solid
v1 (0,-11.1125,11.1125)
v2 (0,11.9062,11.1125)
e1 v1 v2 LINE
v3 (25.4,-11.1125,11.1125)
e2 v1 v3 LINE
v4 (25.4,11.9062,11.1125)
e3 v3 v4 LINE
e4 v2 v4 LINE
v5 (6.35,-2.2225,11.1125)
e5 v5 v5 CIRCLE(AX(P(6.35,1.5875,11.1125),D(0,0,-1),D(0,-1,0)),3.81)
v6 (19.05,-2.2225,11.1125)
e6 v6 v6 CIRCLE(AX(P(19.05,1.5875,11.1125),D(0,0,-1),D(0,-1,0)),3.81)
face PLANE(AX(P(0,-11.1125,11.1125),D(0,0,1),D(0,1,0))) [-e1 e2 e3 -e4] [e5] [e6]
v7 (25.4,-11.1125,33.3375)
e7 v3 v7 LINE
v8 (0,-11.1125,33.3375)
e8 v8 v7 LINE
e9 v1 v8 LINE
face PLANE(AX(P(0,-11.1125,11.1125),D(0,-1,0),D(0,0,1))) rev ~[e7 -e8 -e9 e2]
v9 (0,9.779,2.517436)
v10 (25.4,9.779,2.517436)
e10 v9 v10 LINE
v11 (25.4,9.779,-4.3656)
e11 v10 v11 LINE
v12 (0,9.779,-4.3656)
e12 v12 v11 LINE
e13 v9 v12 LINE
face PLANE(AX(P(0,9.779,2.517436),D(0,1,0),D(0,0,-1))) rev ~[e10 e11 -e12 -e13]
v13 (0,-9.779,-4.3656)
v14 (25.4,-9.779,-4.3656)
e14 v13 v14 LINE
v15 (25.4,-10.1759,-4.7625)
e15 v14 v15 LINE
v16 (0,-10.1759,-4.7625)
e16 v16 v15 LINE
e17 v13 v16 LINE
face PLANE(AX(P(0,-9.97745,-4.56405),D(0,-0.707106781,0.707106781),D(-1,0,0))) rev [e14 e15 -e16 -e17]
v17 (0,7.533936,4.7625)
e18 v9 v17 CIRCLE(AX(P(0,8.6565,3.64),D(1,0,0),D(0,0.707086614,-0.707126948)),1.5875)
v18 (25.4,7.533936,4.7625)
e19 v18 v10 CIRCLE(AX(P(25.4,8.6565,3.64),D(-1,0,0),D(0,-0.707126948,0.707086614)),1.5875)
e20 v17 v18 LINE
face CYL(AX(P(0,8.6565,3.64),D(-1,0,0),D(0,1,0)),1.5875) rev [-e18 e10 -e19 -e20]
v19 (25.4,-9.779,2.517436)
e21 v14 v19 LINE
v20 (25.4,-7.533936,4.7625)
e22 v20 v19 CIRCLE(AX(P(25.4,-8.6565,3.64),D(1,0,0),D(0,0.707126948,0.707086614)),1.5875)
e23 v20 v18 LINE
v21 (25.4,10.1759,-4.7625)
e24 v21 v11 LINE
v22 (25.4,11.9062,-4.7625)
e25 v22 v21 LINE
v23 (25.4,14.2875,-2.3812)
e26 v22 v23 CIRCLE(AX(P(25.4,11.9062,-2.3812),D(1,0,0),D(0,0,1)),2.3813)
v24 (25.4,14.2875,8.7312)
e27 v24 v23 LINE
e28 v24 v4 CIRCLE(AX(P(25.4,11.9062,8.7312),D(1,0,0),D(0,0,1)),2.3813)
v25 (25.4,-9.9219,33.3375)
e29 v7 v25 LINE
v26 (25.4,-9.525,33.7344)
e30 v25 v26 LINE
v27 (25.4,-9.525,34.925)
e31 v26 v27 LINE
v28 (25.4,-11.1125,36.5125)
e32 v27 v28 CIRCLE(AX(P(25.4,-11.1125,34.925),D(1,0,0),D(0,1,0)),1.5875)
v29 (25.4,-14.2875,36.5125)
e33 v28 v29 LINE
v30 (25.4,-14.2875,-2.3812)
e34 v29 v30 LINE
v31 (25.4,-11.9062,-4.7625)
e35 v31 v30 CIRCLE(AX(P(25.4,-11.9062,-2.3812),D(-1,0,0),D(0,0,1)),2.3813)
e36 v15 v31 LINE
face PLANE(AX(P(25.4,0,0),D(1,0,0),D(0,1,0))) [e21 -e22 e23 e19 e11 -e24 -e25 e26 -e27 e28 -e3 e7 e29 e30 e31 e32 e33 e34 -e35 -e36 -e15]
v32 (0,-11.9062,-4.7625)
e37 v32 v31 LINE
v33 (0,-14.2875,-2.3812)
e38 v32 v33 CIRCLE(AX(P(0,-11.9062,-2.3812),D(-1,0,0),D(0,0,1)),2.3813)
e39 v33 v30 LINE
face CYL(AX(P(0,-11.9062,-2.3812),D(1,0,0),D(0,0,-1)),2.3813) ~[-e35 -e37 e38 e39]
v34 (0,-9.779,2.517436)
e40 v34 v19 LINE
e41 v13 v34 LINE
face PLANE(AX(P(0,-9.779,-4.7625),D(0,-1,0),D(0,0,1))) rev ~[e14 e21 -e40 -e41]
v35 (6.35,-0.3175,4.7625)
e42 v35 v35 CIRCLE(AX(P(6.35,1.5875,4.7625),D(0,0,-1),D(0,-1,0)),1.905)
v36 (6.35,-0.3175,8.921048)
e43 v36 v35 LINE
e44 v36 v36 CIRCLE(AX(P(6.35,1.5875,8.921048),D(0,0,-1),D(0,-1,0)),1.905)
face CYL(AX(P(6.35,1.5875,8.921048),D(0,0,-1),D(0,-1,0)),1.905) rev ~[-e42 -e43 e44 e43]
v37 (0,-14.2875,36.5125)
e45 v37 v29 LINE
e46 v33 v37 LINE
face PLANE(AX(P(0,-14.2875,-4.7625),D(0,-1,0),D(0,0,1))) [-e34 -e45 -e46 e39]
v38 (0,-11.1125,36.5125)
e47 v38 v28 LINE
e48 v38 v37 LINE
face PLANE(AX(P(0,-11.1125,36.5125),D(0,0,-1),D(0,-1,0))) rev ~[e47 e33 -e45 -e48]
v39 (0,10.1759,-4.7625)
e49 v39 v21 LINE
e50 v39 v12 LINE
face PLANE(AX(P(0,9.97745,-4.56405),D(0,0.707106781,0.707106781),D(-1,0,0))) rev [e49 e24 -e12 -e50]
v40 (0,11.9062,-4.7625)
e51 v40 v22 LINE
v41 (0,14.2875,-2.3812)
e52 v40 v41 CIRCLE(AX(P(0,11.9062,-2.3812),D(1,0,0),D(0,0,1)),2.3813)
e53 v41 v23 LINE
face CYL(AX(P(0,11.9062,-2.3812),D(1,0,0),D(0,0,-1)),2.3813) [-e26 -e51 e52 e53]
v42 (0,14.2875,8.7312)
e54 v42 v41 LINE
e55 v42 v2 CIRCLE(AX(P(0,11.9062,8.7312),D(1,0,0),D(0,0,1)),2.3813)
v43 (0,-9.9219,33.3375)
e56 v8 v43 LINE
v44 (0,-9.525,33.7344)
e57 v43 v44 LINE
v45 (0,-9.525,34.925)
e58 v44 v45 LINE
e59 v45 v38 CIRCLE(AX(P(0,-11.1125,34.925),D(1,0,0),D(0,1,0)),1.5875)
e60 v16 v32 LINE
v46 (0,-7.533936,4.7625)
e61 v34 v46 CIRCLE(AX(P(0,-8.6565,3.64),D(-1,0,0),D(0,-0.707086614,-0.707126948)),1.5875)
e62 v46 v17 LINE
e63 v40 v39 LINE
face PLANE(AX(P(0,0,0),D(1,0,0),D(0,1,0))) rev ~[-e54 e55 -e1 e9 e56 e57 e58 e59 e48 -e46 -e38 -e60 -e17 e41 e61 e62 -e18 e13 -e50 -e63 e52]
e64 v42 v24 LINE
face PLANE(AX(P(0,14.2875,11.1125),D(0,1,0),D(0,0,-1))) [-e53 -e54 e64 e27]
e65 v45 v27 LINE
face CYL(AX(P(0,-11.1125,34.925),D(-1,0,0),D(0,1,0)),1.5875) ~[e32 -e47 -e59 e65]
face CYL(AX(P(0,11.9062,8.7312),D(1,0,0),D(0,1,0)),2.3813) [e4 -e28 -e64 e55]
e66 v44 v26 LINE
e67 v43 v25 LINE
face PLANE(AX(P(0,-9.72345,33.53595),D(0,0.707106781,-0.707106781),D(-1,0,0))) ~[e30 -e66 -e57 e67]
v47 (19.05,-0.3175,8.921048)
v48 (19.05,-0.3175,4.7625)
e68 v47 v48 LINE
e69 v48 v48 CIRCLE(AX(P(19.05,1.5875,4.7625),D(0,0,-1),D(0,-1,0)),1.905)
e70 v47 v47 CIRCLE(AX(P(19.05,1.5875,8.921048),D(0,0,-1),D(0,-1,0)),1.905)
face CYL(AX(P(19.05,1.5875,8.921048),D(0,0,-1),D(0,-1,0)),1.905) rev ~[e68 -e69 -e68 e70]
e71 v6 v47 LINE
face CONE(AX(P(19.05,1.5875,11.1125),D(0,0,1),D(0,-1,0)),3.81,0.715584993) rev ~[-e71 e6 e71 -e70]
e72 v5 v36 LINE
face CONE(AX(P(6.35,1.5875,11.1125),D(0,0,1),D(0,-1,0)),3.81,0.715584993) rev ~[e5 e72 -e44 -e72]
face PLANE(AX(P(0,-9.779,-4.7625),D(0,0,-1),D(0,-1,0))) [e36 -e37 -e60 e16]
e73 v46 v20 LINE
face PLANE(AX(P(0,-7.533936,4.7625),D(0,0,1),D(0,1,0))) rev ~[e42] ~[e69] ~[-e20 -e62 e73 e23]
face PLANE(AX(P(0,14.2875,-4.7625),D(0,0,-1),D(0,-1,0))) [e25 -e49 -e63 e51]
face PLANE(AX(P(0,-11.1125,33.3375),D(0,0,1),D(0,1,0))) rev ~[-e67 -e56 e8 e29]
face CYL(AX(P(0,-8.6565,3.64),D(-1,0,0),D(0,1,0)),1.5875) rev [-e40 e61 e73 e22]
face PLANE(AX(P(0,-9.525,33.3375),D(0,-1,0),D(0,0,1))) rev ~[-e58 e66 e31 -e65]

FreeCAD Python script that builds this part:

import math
import FreeCAD as App
import Part
import Sketcher
Q = App.Units.Quantity


def edges_at(feature, points):
    """Names of the edges that pass closest to the given points."""
    edges = feature.Shape.Edges
    near = lambda p: min(range(len(edges)), key=lambda i: edges[i].distToShape(Part.Vertex(*p))[0])
    return sorted({f"Edge{near(p) + 1}" for p in points})

doc = App.newDocument("Part")
body = doc.addObject("PartDesign::Body", "Body")

# Sketch on YZ plane
sketch1 = doc.addObject("Sketcher::SketchObject", "Sketch")
body.addObject(sketch1)
sketch1.AttachmentSupport = (doc.YZ_Plane, [""])
sketch1.MapMode = "FlatFace"
sketch1.addGeometry([
    Part.ArcOfCircle(Part.Circle(App.Vector(-8.7, 3.6, 0), App.Vector(0, 0, 1), 1.6), math.radians(45), math.radians(225)),  # 0
    Part.LineSegment(App.Vector(-7.5, 4.8, 0), App.Vector(7.5, 4.8, 0)),  # 1
    Part.ArcOfCircle(Part.Circle(App.Vector(8.7, 3.6, 0), App.Vector(0, 0, 1), 1.6), math.radians(-45), math.radians(135)),  # 2
    Part.LineSegment(App.Vector(9.8, 2.5, 0), App.Vector(9.8, -4.8, 0)),  # 3
    Part.LineSegment(App.Vector(9.8, -4.8, 0), App.Vector(14.3, -4.8, 0)),  # 4
    Part.LineSegment(App.Vector(14.3, -4.8, 0), App.Vector(14.3, 11.1, 0)),  # 5
    Part.LineSegment(App.Vector(14.3, 11.1, 0), App.Vector(-11.1, 11.1, 0)),  # 6
    Part.LineSegment(App.Vector(-11.1, 11.1, 0), App.Vector(-11.1, 33.3, 0)),  # 7
    Part.LineSegment(App.Vector(-11.1, 33.3, 0), App.Vector(-9.5, 33.3, 0)),  # 8
    Part.LineSegment(App.Vector(-9.5, 33.3, 0), App.Vector(-9.5, 34.9, 0)),  # 9
    Part.ArcOfCircle(Part.Circle(App.Vector(-11.1, 34.9, 0), App.Vector(0, 0, 1), 1.6), math.radians(0), math.radians(90)),  # 10
    Part.LineSegment(App.Vector(-11.1, 36.5, 0), App.Vector(-14.3, 36.5, 0)),  # 11
    Part.LineSegment(App.Vector(-14.3, 36.5, 0), App.Vector(-14.3, -4.8, 0)),  # 12
    Part.LineSegment(App.Vector(-14.3, -4.8, 0), App.Vector(-9.8, -4.8, 0)),  # 13
    Part.LineSegment(App.Vector(-9.8, -4.8, 0), App.Vector(-9.8, 2.5, 0)),  # 14
], False)
sketch1.addConstraint([
    Sketcher.Constraint("Coincident", 0, 1, 1, 1),
    Sketcher.Constraint("Coincident", 1, 2, 2, 2),
    Sketcher.Constraint("Coincident", 2, 1, 3, 1),
    Sketcher.Constraint("Coincident", 3, 2, 4, 1),
    Sketcher.Constraint("Coincident", 4, 2, 5, 1),
    Sketcher.Constraint("Coincident", 5, 2, 6, 1),
    Sketcher.Constraint("Coincident", 6, 2, 7, 1),
    Sketcher.Constraint("Coincident", 7, 2, 8, 1),
    Sketcher.Constraint("Coincident", 8, 2, 9, 1),
    Sketcher.Constraint("Tangent", 9, 2, 10, 1),
    Sketcher.Constraint("Tangent", 10, 2, 11, 1),
    Sketcher.Constraint("Coincident", 11, 2, 12, 1),
    Sketcher.Constraint("Coincident", 12, 2, 13, 1),
    Sketcher.Constraint("Coincident", 13, 2, 14, 1),
    Sketcher.Constraint("Coincident", 14, 2, 0, 2),
    Sketcher.Constraint("Horizontal", 1),
    Sketcher.Constraint("Vertical", 3),
    Sketcher.Constraint("Horizontal", 4),
    Sketcher.Constraint("Vertical", 5),
    Sketcher.Constraint("Horizontal", 6),
    Sketcher.Constraint("Vertical", 7),
    Sketcher.Constraint("Horizontal", 8),
    Sketcher.Constraint("Vertical", 9),
    Sketcher.Constraint("Horizontal", 11),
    Sketcher.Constraint("Vertical", 12),
    Sketcher.Constraint("Horizontal", 13),
    Sketcher.Constraint("Vertical", 14),
    Sketcher.Constraint("Equal", 0, 2),
    Sketcher.Constraint("Equal", 2, 10),
    Sketcher.Constraint("Symmetric", 0, 3, 2, 3, -2),
    Sketcher.Constraint("Symmetric", 4, 2, 12, 2, -2),
    Sketcher.Constraint("Horizontal", 2, 1, 14, 2),
    Sketcher.Constraint("Vertical", 10, 3, 6, 2),
    Sketcher.Constraint("Equal", 8, 9),
    Sketcher.Constraint("Radius", 0, Q("0.0625 in")),
    Sketcher.Constraint("DistanceX", 6, 2, 6, 1, Q("1 in")),
    Sketcher.Constraint("DistanceX", 11, 2, 11, 1, Q("0.125 in")),
    Sketcher.Constraint("DistanceY", 7, 1, 7, 2, Q("0.875 in")),
    Sketcher.Constraint("DistanceY", 1, 2, 5, 2, Q("0.25 in")),
    Sketcher.Constraint("DistanceX", 13, 2, 3, 2, Q("0.77 in")),
    Sketcher.Constraint("DistanceY", 3, 2, 1, 2, Q("0.375 in")),
    Sketcher.Constraint("DistanceY", 3, 2, 3, 1, Q("0.2866 in")),
    Sketcher.Constraint("DistanceY", -1, 1, 10, 3, Q("1.375 in")),
    Sketcher.Constraint("DistanceX", 0, 3, -1, 1, Q("0.3408 in")),
])
pad1 = doc.addObject("PartDesign::Pad", "Pad")
body.addObject(pad1)
pad1.Profile = sketch1
pad1.Length = Q("1 in")
doc.recompute()

chamfer = doc.addObject("PartDesign::Chamfer", "Chamfer")
body.addObject(chamfer)
chamfer.Base = (pad1, edges_at(pad1, [(12.7, -9.779, -4.763), (12.7, 9.779, -4.763), (12.7, -9.525, 33.337)]))
chamfer.Size = Q("0.015626 in")
doc.recompute()

fillet = doc.addObject("PartDesign::Fillet", "Fillet")
body.addObject(fillet)
fillet.Base = (chamfer, edges_at(chamfer, [(12.7, 14.287, -4.763), (12.7, -14.287, -4.763)]))
fillet.Radius = Q("0.093752 in")
doc.recompute()

fillet2 = doc.addObject("PartDesign::Fillet", "Fillet001")
body.addObject(fillet2)
fillet2.Base = (fillet, edges_at(fillet, [(12.7, 14.287, 11.113)]))
fillet2.Radius = Q("0.093752 in")

# Sketch on XY plane
sketch2 = doc.addObject("Sketcher::SketchObject", "Sketch001")
body.addObject(sketch2)
sketch2.AttachmentSupport = (doc.XY_Plane, [""])
sketch2.MapMode = "FlatFace"
sketch2.AttachmentOffset = App.Placement(App.Vector(0, 0, 0.4375 * 25.4), App.Rotation())
sketch2.addGeometry([
    Part.Circle(App.Vector(6.3, 1.6, 0), App.Vector(0, 0, 1), 1.9),
    Part.Circle(App.Vector(19.1, 1.6, 0), App.Vector(0, 0, 1), 1.9),
], False)
sketch2.addConstraint([
    Sketcher.Constraint("Equal", 0, 1),
    Sketcher.Constraint("Horizontal", 0, 3, 1, 3),
    Sketcher.Constraint("Diameter", 0, Q("0.15 in")),
    Sketcher.Constraint("DistanceX", 0, 3, 1, 3, Q("0.5 in")),
    Sketcher.Constraint("DistanceX", -1, 1, 0, 3, Q("0.25 in")),
    Sketcher.Constraint("DistanceY", -1, 1, 0, 3, Q("0.0625 in")),
])
doc.recompute()
hole = doc.addObject("PartDesign::Hole", "Hole")
body.addObject(hole)
hole.Profile = sketch2
hole.ThreadType = "None"
hole.Diameter = Q("0.15 in")
hole.DepthType = "ThroughAll"
hole.HoleCutType = "Countersink"
hole.HoleCutDiameter = Q("0.3 in")
hole.HoleCutCountersinkAngle = 82

doc.recompute()
